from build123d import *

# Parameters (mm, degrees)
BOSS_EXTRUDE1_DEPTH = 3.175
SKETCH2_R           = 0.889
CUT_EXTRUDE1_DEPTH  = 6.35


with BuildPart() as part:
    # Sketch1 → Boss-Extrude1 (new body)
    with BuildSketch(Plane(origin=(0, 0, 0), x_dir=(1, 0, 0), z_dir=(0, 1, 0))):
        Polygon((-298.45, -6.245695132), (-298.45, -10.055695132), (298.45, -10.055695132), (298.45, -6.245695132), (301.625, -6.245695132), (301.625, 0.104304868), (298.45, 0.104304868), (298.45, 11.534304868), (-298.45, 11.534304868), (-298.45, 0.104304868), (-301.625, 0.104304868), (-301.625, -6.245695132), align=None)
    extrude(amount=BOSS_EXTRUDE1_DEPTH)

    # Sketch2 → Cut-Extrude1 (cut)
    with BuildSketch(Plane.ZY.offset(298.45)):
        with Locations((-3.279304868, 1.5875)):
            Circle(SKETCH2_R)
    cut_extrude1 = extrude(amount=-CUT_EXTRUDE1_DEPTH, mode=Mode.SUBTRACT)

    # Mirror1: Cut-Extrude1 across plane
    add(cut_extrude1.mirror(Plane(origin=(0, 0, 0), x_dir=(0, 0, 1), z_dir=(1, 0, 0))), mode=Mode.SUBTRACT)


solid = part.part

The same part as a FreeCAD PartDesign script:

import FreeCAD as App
import Part
import Sketcher
Q = App.Units.Quantity


def add_polygon(sketch, points):
    """Adds a closed chain of lines whose ends are joined by coincident constraints."""
    first, n = sketch.GeometryCount, len(points)
    for a, b in zip(points, points[1:] + points[:1]):
        sketch.addGeometry(Part.LineSegment(App.Vector(*a, 0), App.Vector(*b, 0)), False)
    for i in range(n):
        sketch.addConstraint(Sketcher.Constraint("Coincident", first + i, 2, first + (i + 1) % n, 1))

doc = App.newDocument("Part")
body = doc.addObject("PartDesign::Body", "Body")

# Sketch on XZ plane
sketch1 = body.newObject("Sketcher::SketchObject", "Sketch")
sketch1.AttachmentSupport = (doc.getObject("XZ_Plane"), [""])
sketch1.MapMode = "FlatFace"
add_polygon(sketch1, [(-298.4, 6.2), (-298.4, 10.1), (298.4, 10.1), (298.4, 6.2), (301.6, 6.2), (301.6, -0.1), (298.4, -0.1), (298.4, -11.5), (-298.4, -11.5), (-298.4, -0.1), (-301.6, -0.1), (-301.6, 6.2)])  # lines 0-11
sketch1.addConstraint([
    Sketcher.Constraint("Vertical", 0),
    Sketcher.Constraint("Horizontal", 1),
    Sketcher.Constraint("Vertical", 2),
    Sketcher.Constraint("Horizontal", 3),
    Sketcher.Constraint("Vertical", 4),
    Sketcher.Constraint("Horizontal", 5),
    Sketcher.Constraint("Vertical", 6),
    Sketcher.Constraint("Horizontal", 7),
    Sketcher.Constraint("Vertical", 8),
    Sketcher.Constraint("Horizontal", 9),
    Sketcher.Constraint("Vertical", 10),
    Sketcher.Constraint("Horizontal", 11),
    Sketcher.Constraint("Symmetric", 5, 2, 8, 2, -2),
    Sketcher.Constraint("Symmetric", 3, 2, 10, 2, -2),
    Sketcher.Constraint("Vertical", 2, 2, 5, 2),
    Sketcher.Constraint("Vertical", 0, 2, 7, 2),
    Sketcher.Constraint("DistanceX", 1, 1, 1, 2, Q("23.5 in")),
    Sketcher.Constraint("DistanceY", 0, 1, 0, 2, Q("0.15 in")),
    Sketcher.Constraint("DistanceY", 4, 2, 4, 1, Q("0.25 in")),
    Sketcher.Constraint("DistanceY", 6, 2, 6, 1, Q("0.45 in")),
    Sketcher.Constraint("DistanceX", 3, 1, 3, 2, Q("0.125 in")),
    Sketcher.Constraint("DistanceY", -1, 1, 0, 2, Q("10.055695 mm")),
])
pad1 = body.newObject("PartDesign::Pad", "Pad")
pad1.Profile = sketch1
pad1.Length = Q("0.125 in")
pad1.Reversed = True

# Sketch on YZ plane
sketch2 = body.newObject("Sketcher::SketchObject", "Sketch001")
sketch2.AttachmentSupport = (doc.getObject("YZ_Plane"), [""])
sketch2.MapMode = "FlatFace"
sketch2.AttachmentOffset = App.Placement(App.Vector(0, 0, -11.75 * 25.4), App.Rotation())
sketch2.addGeometry(Part.Circle(App.Vector(1.6, -3.3, 0), App.Vector(0, 0, 1), 0.9), False)
sketch2.addConstraint([
    Sketcher.Constraint("Diameter", 0, Q("0.07 in")),
    Sketcher.Constraint("DistanceX", -1, 1, 0, 3, Q("0.0625 in")),
    Sketcher.Constraint("DistanceY", 0, 3, -1, 1, Q("3.279305 mm")),
])
pocket1 = body.newObject("PartDesign::Pocket", "Pocket")
pocket1.Profile = sketch2
pocket1.Length = Q("0.25 in")
pocket1.Reversed = True
doc.recompute()

mirrored = body.newObject("PartDesign::Mirrored", "Mirrored")
mirrored.Originals = [pocket1]
mirrored.MirrorPlane = (doc.getObject("YZ_Plane"), [""])
body.Tip = mirrored

doc.recompute()
